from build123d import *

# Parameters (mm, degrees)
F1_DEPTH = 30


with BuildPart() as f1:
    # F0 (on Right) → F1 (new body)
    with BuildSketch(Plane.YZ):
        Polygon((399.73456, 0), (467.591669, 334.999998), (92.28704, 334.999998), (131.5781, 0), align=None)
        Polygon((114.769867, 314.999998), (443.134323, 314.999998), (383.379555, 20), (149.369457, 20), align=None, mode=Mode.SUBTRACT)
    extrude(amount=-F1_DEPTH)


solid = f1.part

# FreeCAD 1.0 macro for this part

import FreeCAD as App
import Part
import Sketcher

V = App.Vector
Q = App.Units.Quantity


def add_polygon(sketch, points):
    """Adds a closed chain of lines whose ends are joined by coincident constraints."""
    first, n = sketch.GeometryCount, len(points)
    for a, b in zip(points, points[1:] + points[:1]):
        sketch.addGeometry(Part.LineSegment(App.Vector(*a, 0), App.Vector(*b, 0)), False)
    for i in range(n):
        sketch.addConstraint(Sketcher.Constraint("Coincident", first + i, 2, first + (i + 1) % n, 1))

doc = App.newDocument("Part")
body = doc.addObject("PartDesign::Body", "Body")

sketch1 = body.newObject("Sketcher::SketchObject", "Sketch")
sketch1.AttachmentSupport = (doc.getObject("YZ_Plane"), [""])
sketch1.MapMode = "FlatFace"
add_polygon(sketch1, [(399.73456, 0), (467.591669, 334.999998), (92.28704, 334.999998), (131.5781, 0)])
add_polygon(sketch1, [(149.369457, 20), (114.769867, 314.999998), (443.134323, 314.999998), (383.379555, 20)])
sketch1.addConstraint(Sketcher.Constraint("Horizontal", 1))
sketch1.addConstraint(Sketcher.Constraint("Horizontal", 3))
sketch1.addConstraint(Sketcher.Constraint("Horizontal", 5))
sketch1.addConstraint(Sketcher.Constraint("Horizontal", 7))
sketch1.addConstraint(Sketcher.Constraint("PointOnObject", 2, 2, -1))
sketch1.addConstraint(Sketcher.Constraint("Parallel", 2, 4))
sketch1.addConstraint(Sketcher.Constraint("Parallel", 0, 6))
sketch1.addConstraint(Sketcher.Constraint("DistanceY", -1, 1, 0, 2, Q("334.999998 mm")))
sketch1.addConstraint(Sketcher.Constraint("DistanceY", -1, 1, 4, 2, Q("314.999998 mm")))
sketch1.addConstraint(Sketcher.Constraint("DistanceY", -1, 1, 6, 2, Q("20 mm")))
sketch1.addConstraint(Sketcher.Constraint("DistanceX", 1, 2, 1, 1, Q("375.304629 mm")))
sketch1.addConstraint(Sketcher.Constraint("DistanceX", 3, 1, 3, 2, Q("268.15646 mm")))
sketch1.addConstraint(Sketcher.Constraint("DistanceX", -1, 1, 2, 2, Q("131.5781 mm")))
sketch1.addConstraint(Sketcher.Constraint("Distance", 0, Q("341.803432 mm")))
sketch1.addConstraint(Sketcher.Constraint("DistanceX", 5, 1, 5, 2, Q("328.364456 mm")))
sketch1.addConstraint(Sketcher.Constraint("DistanceX", -1, 1, 4, 2, Q("114.769867 mm")))
pad1 = body.newObject("PartDesign::Pad", "Pad")
pad1.Profile = sketch1
pad1.Length = 30
pad1.Reversed = True

doc.recompute()
